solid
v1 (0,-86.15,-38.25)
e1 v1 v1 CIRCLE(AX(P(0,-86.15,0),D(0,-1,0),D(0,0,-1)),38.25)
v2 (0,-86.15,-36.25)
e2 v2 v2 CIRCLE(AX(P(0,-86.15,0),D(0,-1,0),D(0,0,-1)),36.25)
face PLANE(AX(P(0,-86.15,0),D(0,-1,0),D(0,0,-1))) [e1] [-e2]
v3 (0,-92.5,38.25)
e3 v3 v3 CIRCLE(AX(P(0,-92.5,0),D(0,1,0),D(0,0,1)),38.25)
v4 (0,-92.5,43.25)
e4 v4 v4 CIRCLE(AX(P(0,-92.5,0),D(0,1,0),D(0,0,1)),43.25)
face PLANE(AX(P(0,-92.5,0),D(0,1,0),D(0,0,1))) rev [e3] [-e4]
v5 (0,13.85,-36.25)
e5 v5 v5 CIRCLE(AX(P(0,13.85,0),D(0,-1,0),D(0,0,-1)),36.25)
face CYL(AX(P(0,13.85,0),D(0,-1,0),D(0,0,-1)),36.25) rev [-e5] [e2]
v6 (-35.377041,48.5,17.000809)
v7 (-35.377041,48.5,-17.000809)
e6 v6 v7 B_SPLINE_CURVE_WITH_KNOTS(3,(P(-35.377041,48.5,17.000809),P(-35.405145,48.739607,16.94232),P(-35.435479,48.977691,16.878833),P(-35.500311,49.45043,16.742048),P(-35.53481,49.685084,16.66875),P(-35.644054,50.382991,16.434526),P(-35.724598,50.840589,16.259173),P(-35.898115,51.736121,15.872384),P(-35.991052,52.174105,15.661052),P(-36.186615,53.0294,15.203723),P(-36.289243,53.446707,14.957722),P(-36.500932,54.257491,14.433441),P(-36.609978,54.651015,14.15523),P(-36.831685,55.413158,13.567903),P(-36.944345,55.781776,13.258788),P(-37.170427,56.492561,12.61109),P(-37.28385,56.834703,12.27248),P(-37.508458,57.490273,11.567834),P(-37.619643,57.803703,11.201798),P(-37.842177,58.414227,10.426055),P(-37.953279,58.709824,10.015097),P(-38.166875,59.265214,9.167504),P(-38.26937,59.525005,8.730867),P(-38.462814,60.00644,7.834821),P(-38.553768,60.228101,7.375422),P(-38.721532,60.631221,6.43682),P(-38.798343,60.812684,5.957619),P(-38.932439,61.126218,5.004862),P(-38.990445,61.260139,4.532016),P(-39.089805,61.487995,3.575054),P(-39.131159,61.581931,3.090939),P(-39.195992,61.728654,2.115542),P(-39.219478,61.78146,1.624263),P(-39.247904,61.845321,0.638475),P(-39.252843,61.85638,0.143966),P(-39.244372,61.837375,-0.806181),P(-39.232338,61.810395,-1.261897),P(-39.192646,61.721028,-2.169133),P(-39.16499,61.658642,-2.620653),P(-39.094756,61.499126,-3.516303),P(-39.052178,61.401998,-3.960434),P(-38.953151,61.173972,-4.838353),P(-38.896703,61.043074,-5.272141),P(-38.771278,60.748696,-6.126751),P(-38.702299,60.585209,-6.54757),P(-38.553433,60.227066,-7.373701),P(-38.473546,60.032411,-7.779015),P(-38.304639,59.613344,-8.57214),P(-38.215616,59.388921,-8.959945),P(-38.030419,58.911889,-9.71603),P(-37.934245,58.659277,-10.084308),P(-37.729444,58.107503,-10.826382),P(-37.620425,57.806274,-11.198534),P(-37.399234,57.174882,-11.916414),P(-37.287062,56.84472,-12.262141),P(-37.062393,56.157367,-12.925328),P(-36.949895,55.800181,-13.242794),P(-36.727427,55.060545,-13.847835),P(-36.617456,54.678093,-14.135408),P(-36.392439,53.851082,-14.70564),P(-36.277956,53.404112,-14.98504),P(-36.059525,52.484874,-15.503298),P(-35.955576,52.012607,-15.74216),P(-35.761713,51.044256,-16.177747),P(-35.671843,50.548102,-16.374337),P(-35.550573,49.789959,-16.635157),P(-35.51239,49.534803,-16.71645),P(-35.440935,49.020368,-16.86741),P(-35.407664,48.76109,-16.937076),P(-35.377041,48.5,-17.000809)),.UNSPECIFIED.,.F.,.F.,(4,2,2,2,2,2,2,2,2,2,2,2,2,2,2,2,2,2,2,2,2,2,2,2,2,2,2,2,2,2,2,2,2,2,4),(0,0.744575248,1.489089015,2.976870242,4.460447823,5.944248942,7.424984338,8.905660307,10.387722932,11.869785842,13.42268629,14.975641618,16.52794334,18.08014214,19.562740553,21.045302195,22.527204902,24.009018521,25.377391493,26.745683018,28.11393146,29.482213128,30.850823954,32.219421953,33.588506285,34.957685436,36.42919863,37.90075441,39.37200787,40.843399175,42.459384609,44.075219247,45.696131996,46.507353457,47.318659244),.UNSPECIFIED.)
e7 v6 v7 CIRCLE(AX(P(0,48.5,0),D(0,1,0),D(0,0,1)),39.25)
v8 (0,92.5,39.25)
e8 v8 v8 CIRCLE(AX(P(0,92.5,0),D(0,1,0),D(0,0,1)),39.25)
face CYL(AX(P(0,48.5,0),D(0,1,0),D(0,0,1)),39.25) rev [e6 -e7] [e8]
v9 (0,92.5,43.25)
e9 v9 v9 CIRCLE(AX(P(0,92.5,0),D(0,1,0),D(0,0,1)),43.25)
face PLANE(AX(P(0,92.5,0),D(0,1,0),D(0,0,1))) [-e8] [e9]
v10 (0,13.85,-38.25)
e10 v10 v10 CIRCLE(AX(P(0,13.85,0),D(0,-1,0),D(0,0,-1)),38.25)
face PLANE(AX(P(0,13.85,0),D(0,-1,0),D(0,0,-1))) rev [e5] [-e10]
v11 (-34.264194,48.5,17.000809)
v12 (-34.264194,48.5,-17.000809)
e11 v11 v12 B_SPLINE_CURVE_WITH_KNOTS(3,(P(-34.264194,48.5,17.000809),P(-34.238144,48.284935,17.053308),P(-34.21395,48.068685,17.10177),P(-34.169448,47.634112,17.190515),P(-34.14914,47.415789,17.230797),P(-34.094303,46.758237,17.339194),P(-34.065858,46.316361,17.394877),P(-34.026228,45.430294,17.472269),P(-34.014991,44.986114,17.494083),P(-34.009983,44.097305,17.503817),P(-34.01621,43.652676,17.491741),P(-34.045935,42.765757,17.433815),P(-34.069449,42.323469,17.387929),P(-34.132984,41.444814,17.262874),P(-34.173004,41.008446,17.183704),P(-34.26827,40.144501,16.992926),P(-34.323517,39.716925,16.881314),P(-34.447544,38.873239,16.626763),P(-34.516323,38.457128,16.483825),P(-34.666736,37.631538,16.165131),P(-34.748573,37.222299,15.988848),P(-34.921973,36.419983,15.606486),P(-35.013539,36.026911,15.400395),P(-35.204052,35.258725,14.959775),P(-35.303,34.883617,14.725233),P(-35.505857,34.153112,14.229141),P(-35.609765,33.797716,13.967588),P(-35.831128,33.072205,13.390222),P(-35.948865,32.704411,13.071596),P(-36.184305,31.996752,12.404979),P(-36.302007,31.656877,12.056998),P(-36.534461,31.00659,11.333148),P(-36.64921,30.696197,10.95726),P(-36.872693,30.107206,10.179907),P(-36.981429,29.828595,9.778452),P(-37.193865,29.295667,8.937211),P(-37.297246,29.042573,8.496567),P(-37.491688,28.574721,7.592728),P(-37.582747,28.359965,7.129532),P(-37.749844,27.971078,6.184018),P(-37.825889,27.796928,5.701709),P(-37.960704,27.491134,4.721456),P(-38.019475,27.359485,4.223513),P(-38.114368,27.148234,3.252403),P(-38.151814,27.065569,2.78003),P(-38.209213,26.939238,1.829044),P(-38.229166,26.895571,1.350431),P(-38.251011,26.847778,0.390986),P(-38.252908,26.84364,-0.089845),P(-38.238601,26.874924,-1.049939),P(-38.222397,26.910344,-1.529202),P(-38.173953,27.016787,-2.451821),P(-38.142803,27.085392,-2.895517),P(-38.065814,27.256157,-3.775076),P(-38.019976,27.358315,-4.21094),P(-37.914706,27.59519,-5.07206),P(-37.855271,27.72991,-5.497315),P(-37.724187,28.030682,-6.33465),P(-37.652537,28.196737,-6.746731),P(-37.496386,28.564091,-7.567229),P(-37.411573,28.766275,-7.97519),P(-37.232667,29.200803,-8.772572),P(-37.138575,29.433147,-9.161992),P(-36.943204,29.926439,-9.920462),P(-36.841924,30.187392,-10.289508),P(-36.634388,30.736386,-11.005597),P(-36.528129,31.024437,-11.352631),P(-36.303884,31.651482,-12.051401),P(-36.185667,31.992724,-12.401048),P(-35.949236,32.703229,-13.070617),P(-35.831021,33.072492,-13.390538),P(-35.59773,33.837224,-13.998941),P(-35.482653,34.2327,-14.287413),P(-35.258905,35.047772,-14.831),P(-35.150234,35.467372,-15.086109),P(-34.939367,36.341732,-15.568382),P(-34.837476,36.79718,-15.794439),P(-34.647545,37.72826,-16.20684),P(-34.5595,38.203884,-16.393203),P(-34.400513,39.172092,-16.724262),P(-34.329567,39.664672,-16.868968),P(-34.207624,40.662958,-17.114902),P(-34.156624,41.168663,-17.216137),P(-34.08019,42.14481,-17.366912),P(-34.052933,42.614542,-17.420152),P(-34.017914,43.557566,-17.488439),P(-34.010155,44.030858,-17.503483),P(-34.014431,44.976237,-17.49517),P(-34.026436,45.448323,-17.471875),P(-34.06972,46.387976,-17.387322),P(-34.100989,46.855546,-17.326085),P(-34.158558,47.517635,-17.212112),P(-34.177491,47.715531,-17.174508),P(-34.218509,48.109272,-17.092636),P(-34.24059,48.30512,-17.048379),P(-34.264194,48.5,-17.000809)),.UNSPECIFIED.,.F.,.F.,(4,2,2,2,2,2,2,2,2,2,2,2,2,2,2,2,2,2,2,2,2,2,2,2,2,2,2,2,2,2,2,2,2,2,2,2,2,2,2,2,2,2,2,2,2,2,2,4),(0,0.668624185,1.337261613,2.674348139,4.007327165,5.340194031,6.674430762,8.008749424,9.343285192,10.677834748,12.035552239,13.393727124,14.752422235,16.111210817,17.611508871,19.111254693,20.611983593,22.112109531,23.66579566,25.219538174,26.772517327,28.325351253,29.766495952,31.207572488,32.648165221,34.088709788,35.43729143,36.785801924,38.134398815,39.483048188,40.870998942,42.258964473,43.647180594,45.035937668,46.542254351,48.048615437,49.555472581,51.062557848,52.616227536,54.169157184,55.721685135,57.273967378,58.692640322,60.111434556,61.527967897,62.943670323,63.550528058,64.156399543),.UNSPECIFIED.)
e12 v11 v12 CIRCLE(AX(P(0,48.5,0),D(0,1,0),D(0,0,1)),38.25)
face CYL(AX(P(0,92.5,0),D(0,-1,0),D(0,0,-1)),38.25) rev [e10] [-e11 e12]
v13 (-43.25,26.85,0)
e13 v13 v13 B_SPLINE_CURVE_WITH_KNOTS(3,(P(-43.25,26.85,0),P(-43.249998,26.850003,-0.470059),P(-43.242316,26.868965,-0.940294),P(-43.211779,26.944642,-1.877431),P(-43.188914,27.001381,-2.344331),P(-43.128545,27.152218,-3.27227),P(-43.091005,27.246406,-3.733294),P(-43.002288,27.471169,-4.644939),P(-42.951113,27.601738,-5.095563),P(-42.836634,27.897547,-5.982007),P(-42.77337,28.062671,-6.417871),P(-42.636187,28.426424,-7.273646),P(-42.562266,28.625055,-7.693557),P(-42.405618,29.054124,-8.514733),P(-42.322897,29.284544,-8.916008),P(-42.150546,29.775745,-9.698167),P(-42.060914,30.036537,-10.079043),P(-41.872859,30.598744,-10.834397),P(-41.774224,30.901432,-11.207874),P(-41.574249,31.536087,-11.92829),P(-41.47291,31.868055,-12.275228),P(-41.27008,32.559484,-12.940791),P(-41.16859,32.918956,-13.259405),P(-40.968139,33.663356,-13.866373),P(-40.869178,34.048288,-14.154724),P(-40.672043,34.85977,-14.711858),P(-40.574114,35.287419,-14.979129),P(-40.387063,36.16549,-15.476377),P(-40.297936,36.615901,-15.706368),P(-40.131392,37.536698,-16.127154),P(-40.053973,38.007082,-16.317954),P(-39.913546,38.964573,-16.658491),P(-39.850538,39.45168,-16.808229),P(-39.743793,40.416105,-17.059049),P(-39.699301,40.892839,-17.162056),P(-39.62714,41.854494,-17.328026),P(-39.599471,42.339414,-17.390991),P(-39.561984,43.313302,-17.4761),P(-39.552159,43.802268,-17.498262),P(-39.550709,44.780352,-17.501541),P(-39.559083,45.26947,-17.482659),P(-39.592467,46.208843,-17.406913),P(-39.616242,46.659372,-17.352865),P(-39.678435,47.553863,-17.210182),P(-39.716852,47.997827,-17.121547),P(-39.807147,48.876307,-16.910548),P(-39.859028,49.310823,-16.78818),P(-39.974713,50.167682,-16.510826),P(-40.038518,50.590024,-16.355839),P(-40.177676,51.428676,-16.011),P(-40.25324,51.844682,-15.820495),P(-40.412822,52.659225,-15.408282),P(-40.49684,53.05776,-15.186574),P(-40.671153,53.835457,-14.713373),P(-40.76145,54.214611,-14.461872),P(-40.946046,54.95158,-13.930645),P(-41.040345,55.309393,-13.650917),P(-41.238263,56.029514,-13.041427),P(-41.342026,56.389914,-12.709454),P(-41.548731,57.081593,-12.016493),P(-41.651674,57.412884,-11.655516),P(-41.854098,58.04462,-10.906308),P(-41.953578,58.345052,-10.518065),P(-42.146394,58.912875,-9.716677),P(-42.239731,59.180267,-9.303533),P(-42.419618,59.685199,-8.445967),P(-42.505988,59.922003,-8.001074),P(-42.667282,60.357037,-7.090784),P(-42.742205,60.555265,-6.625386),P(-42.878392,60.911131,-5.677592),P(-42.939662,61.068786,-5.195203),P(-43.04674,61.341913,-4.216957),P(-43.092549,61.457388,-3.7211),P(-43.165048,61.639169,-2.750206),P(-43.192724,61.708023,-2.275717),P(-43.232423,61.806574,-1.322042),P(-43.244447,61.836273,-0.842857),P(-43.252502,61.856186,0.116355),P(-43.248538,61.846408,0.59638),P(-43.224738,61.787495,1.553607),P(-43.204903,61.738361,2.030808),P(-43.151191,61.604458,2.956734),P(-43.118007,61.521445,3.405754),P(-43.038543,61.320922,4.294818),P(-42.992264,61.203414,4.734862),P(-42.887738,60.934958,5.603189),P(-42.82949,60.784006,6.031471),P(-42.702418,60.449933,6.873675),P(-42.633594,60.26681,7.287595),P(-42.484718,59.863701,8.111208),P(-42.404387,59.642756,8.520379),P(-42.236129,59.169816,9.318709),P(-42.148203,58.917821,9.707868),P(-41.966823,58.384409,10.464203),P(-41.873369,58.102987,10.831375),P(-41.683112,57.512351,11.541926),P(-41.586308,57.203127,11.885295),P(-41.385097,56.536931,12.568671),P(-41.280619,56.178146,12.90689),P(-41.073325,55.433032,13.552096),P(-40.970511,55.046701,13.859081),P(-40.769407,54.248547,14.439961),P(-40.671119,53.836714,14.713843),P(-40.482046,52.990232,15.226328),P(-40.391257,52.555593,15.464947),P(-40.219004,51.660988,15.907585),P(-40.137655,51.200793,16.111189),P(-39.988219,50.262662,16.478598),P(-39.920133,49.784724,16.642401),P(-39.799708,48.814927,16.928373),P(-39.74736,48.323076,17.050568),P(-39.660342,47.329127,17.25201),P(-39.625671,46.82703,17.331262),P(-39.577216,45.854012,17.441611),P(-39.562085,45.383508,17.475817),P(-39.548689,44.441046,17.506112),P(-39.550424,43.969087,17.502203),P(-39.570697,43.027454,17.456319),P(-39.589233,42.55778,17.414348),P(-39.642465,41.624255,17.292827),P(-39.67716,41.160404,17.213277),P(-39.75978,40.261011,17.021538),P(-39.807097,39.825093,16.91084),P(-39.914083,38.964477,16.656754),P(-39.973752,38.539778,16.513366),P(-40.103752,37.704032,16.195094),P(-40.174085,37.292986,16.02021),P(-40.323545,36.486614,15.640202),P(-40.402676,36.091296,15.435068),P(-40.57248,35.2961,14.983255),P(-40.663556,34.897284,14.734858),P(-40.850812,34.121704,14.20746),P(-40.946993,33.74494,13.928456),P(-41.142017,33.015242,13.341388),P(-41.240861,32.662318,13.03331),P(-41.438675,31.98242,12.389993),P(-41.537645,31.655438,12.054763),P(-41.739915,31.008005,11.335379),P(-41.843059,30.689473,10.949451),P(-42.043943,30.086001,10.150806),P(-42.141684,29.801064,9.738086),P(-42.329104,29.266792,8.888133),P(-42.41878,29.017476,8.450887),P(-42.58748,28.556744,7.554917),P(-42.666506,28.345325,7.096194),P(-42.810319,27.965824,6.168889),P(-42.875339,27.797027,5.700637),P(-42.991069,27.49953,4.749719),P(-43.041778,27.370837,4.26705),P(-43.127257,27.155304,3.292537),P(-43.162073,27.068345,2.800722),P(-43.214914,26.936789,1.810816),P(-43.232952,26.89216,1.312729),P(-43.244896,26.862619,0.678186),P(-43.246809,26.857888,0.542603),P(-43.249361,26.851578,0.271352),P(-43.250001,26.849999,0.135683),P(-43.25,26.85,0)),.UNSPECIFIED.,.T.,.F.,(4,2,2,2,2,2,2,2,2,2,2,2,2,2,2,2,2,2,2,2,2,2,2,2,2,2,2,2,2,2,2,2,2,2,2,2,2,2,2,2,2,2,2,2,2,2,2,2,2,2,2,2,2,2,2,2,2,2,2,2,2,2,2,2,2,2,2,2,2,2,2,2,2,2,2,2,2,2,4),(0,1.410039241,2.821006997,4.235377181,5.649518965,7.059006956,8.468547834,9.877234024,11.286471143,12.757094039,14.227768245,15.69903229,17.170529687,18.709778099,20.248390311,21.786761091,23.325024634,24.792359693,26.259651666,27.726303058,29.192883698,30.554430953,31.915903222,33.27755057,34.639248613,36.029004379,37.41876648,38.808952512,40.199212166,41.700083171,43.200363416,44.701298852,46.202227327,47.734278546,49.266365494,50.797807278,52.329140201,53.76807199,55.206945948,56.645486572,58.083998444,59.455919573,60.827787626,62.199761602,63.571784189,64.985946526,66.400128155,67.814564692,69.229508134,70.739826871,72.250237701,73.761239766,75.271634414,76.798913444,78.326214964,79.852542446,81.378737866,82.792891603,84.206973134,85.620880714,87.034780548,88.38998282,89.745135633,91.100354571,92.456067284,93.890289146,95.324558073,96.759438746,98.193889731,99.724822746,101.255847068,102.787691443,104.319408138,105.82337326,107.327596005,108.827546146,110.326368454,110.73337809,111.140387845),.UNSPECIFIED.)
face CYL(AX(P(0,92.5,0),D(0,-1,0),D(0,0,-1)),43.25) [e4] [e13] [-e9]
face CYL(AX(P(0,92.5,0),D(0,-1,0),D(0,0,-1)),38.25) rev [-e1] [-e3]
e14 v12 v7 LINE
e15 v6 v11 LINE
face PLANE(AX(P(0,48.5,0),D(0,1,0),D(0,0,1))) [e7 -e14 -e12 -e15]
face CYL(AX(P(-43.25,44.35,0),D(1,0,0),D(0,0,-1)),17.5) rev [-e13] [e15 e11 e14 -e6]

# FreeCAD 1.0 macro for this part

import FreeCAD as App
import Part
import Sketcher

V = App.Vector
Q = App.Units.Quantity

doc = App.newDocument("Part")
body = doc.addObject("PartDesign::Body", "Body")

sketch1 = body.newObject("Sketcher::SketchObject", "Sketch")
sketch1.AttachmentSupport = (doc.getObject("XZ_Plane"), [""])
sketch1.MapMode = "FlatFace"
sketch1.addGeometry([
    Part.Circle(V(0, 0, 0), V(0, 0, 1), 43),
    Part.Circle(V(0, 0, 0), V(0, 0, 1), 38),
], False)
sketch1.addConstraint([
    Sketcher.Constraint("Coincident", 0, 3, -1, 1),
    Sketcher.Constraint("Coincident", 1, 3, -1, 1),
    Sketcher.Constraint("Diameter", 0, Q("86.5 mm")),
    Sketcher.Constraint("Diameter", 1, Q("76.5 mm")),
])
pad1 = body.newObject("PartDesign::Pad", "Pad")
pad1.Profile = sketch1
pad1.Length = 185
pad1.Midplane = True

sketch2 = body.newObject("Sketcher::SketchObject", "Sketch001")
sketch2.AttachmentSupport = (doc.getObject("XZ_Plane"), [""])
sketch2.MapMode = "FlatFace"
sketch2.AttachmentOffset = App.Placement(V(0, 0, 86.15), App.Rotation())
sketch2.addGeometry([
    Part.Circle(V(0, 0, 0), V(0, 0, 1), 38),
    Part.Circle(V(0, 0, 0), V(0, 0, 1), 36),
], False)
sketch2.addConstraint([
    Sketcher.Constraint("Coincident", 0, 3, -1, 1),
    Sketcher.Constraint("Coincident", 1, 3, -1, 1),
    Sketcher.Constraint("Diameter", 0, Q("76.5 mm")),
    Sketcher.Constraint("Diameter", 1, Q("72.5 mm")),
])
pad2 = body.newObject("PartDesign::Pad", "Pad001")
pad2.Profile = sketch2
pad2.Length = 100
pad2.Reversed = True

sketch3 = body.newObject("Sketcher::SketchObject", "Sketch002")
sketch3.AttachmentSupport = (doc.getObject("XZ_Plane"), [""])
sketch3.MapMode = "FlatFace"
sketch3.AttachmentOffset = App.Placement(V(0, 0, -48.5), App.Rotation())
sketch3.addGeometry([
    Part.Circle(V(0, 0, 0), V(0, 0, 1), 39),
    Part.Circle(V(0, 0, 0), V(0, 0, 1), 38),
], False)
sketch3.addConstraint([
    Sketcher.Constraint("Coincident", 0, 3, -1, 1),
    Sketcher.Constraint("Coincident", 1, 3, -1, 1),
    Sketcher.Constraint("Diameter", 0, Q("78.5 mm")),
    Sketcher.Constraint("Diameter", 1, Q("76.5 mm")),
])
pocket1 = body.newObject("PartDesign::Pocket", "Pocket")
pocket1.Profile = sketch3
pocket1.Length = 44

sketch4 = body.newObject("Sketcher::SketchObject", "Sketch003")
sketch4.AttachmentSupport = (doc.getObject("YZ_Plane"), [""])
sketch4.MapMode = "FlatFace"
sketch4.addGeometry(Part.Circle(V(44, 0, 0), V(0, 0, 1), 18), False)
sketch4.addConstraint([
    Sketcher.Constraint("PointOnObject", 0, 3, -1),
    Sketcher.Constraint("Diameter", 0, Q("35 mm")),
    Sketcher.Constraint("DistanceX", -1, 1, 0, 3, Q("44.35 mm")),
])
pocket2 = body.newObject("PartDesign::Pocket", "Pocket001")
pocket2.Profile = sketch4
pocket2.Type = "ThroughAll"

doc.recompute()
